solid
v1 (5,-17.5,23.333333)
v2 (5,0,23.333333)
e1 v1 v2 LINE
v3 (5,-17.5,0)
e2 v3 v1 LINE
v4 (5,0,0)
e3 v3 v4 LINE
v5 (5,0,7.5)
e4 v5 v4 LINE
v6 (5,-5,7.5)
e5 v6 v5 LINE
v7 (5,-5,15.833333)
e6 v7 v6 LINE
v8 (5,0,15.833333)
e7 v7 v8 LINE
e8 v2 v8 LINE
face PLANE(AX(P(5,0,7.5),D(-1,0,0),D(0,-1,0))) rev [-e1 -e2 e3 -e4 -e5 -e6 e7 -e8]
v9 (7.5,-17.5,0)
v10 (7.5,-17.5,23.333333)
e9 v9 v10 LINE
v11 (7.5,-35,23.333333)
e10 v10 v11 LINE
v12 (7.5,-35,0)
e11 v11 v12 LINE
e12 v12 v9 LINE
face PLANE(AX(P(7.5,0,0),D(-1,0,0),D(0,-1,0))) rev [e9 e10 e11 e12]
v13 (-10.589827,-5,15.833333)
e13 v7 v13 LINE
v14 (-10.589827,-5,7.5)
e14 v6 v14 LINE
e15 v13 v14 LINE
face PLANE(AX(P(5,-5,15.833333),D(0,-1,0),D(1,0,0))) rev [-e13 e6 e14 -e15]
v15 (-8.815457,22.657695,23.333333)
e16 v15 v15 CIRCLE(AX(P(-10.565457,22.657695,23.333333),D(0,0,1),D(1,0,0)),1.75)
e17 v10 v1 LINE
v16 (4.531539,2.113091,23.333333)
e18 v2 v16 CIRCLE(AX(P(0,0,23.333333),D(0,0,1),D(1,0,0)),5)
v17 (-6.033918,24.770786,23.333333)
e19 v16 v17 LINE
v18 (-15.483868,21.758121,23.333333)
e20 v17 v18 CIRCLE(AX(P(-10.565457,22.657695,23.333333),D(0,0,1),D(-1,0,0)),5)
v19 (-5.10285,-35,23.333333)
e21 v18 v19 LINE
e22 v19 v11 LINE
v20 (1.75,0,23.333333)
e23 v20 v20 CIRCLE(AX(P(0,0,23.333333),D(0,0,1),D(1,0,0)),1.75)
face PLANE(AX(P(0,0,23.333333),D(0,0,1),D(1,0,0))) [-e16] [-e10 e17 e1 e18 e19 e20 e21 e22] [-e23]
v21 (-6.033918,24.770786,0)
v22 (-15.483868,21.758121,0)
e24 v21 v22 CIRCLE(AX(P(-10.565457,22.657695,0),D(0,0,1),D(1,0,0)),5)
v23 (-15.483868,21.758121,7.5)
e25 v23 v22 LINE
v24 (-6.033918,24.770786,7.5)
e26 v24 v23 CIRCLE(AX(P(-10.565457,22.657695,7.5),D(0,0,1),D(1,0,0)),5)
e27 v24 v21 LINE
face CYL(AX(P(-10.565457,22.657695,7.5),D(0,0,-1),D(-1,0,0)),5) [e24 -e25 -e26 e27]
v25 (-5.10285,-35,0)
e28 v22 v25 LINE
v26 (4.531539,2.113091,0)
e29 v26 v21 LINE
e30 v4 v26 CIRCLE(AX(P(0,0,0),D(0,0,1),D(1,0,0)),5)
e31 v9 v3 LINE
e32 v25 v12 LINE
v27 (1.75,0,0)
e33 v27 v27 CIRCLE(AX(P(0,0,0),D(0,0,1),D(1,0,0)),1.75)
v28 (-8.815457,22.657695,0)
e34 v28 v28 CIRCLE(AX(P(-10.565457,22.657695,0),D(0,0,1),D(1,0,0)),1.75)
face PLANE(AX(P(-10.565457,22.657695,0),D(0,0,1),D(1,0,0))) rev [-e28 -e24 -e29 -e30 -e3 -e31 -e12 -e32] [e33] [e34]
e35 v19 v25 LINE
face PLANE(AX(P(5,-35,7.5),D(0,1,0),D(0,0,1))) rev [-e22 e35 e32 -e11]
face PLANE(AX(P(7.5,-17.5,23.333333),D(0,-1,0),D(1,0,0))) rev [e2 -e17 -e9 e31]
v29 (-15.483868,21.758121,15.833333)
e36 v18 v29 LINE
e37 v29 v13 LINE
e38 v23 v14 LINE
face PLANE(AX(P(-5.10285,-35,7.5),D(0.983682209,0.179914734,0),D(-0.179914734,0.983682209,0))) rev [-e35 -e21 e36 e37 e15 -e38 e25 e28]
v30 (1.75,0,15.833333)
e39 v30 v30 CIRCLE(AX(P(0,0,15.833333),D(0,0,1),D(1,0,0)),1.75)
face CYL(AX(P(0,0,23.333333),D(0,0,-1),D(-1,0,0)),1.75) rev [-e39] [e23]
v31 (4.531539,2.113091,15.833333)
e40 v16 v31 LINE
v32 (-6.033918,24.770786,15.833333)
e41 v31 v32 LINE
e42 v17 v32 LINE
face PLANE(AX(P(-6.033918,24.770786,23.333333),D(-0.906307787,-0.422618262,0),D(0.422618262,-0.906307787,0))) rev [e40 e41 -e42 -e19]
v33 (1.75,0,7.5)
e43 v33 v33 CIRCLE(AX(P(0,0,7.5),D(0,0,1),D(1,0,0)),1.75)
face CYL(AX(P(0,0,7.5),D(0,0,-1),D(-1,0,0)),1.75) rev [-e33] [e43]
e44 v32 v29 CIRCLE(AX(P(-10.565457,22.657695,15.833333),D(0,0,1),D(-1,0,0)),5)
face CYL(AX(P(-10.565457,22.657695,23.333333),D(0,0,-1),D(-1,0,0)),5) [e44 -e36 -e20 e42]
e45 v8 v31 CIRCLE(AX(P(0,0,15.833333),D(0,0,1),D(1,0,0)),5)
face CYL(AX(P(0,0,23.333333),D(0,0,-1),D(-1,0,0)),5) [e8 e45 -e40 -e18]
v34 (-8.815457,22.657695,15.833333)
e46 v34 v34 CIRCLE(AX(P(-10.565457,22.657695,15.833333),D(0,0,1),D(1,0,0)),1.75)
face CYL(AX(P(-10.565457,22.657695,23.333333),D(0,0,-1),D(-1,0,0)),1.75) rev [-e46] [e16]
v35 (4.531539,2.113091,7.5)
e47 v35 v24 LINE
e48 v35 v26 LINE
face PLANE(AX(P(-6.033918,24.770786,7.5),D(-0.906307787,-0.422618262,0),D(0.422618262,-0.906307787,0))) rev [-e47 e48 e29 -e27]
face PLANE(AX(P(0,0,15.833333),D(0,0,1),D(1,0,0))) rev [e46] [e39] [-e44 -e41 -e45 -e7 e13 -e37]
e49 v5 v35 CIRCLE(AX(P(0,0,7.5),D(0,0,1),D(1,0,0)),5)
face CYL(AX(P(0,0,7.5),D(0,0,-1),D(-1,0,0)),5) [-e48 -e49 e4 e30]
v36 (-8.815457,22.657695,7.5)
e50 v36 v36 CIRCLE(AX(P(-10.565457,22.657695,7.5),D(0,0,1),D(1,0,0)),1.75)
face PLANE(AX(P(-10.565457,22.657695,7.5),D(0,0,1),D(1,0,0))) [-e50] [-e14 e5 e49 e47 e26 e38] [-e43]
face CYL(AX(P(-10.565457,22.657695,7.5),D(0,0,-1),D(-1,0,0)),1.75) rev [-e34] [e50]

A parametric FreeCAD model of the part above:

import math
import FreeCAD as App
import Part
import Sketcher
Q = App.Units.Quantity


def add_polygon(sketch, points):
    """Adds a closed chain of lines whose ends are joined by coincident constraints."""
    first, n = sketch.GeometryCount, len(points)
    for a, b in zip(points, points[1:] + points[:1]):
        sketch.addGeometry(Part.LineSegment(App.Vector(*a, 0), App.Vector(*b, 0)), False)
    for i in range(n):
        sketch.addConstraint(Sketcher.Constraint("Coincident", first + i, 2, first + (i + 1) % n, 1))

doc = App.newDocument("Part")
params = doc.addObject("Spreadsheet::Sheet", "Params")
for row, (alias, value) in enumerate([
    ("sketch1_radius", "5 mm"),
    ("sketch1_diameter", "3.5 mm"),
    ("sketch1_height", "35 mm"),
    ("sketch1_length", "25 mm"),
    ("pad1_length", "7.5 mm"),
    ("sketch2_height", "30 mm"),
    ("pad2_length", "8.333333 mm"),
    ("sketch3_radius", "5 mm"),
    ("sketch3_diameter", "3.5 mm"),
    ("sketch3_height", "35 mm"),
    ("sketch3_length", "25 mm"),
    ("pad3_length", "7.5 mm"),
    ("sketch4_width", "17.5 mm"),
    ("pad4_length", "2.5 mm"),
], start=1):
    params.set(f"A{row}", alias)
    params.set(f"B{row}", "=" + value)
    params.setAlias(f"B{row}", alias)

body = doc.addObject("PartDesign::Body", "Body")

# Sketch on XY plane
sketch1 = body.newObject("Sketcher::SketchObject", "Sketch")
sketch1.AttachmentSupport = (doc.getObject("XY_Plane"), [""])
sketch1.MapMode = "FlatFace"
sketch1.addGeometry(Part.LineSegment(App.Vector(4.531539, 2.113091, 0), App.Vector(-6.033918, 24.770786, 0)), False)
sketch1.addGeometry(Part.ArcOfCircle(Part.Circle(App.Vector(-10.565457, 22.657695, 0), App.Vector(0, 0, 1), 5), math.radians(25), math.radians(190.364793)), False)
sketch1.addGeometry(Part.LineSegment(App.Vector(-15.483868, 21.758121, 0), App.Vector(-5.10285, -35, 0)), False)
sketch1.addGeometry(Part.LineSegment(App.Vector(-5.10285, -35, 0), App.Vector(5, -35, 0)), False)
sketch1.addGeometry(Part.LineSegment(App.Vector(5, -35, 0), App.Vector(5, 0, 0)), False)
sketch1.addGeometry(Part.ArcOfCircle(Part.Circle(App.Vector(0, 0, 0), App.Vector(0, 0, 1), 5), math.radians(0), math.radians(25)), False)
sketch1.addGeometry(Part.Circle(App.Vector(0, 0, 0), App.Vector(0, 0, 1), 1.75), False)
sketch1.addGeometry(Part.Circle(App.Vector(-10.565457, 22.657695, 0), App.Vector(0, 0, 1), 1.75), False)
sketch1.addConstraint(Sketcher.Constraint("Tangent", 0, 2, 1, 1))
sketch1.addConstraint(Sketcher.Constraint("Tangent", 1, 2, 2, 1))
sketch1.addConstraint(Sketcher.Constraint("Coincident", 2, 2, 3, 1))
sketch1.addConstraint(Sketcher.Constraint("Coincident", 3, 2, 4, 1))
sketch1.addConstraint(Sketcher.Constraint("Tangent", 4, 2, 5, 1))
sketch1.addConstraint(Sketcher.Constraint("Tangent", 5, 2, 0, 1))
sketch1.addConstraint(Sketcher.Constraint("Horizontal", 3))
sketch1.addConstraint(Sketcher.Constraint("Vertical", 4))
sketch1.addConstraint(Sketcher.Constraint("Coincident", 5, 3, -1, 1))
sketch1.addConstraint(Sketcher.Constraint("Coincident", 6, 3, -1, 1))
sketch1.addConstraint(Sketcher.Constraint("Coincident", 7, 3, 1, 3))
sketch1.addConstraint(Sketcher.Constraint("Equal", 1, 5))
sketch1.addConstraint(Sketcher.Constraint("Equal", 6, 7))
sketch1.addConstraint(Sketcher.Constraint("Radius", 1, Q("5 mm")))
sketch1.addConstraint(Sketcher.Constraint("Diameter", 6, Q("3.5 mm")))
sketch1.addConstraint(Sketcher.Constraint("DistanceY", 4, 1, 4, 2, Q("35 mm")))
sketch1.addConstraint(Sketcher.Constraint("Angle", 0, Q("115 deg")))
sketch1.addConstraint(Sketcher.Constraint("Distance", 0, Q("25 mm")))
sketch1.addConstraint(Sketcher.Constraint("DistanceX", 3, 1, 3, 2, Q("10.10285 mm")))
sketch1.setExpression("Constraints[13]", "Params.sketch1_radius")
sketch1.setExpression("Constraints[14]", "Params.sketch1_diameter")
sketch1.setExpression("Constraints[15]", "Params.sketch1_height")
sketch1.setExpression("Constraints[17]", "Params.sketch1_length")
pad1 = body.newObject("PartDesign::Pad", "Pad")
pad1.Profile = sketch1
pad1.setExpression("Length", "Params.pad1_length")

# Sketch on XY plane
sketch2 = body.newObject("Sketcher::SketchObject", "Sketch001")
sketch2.AttachmentSupport = (doc.getObject("XY_Plane"), [""])
sketch2.MapMode = "FlatFace"
sketch2.AttachmentOffset = App.Placement(App.Vector(0, 0, 7.5), App.Rotation())
add_polygon(sketch2, [(5, -5), (-10.589827, -5), (-5.10285, -35), (5, -35)])  # lines 0-3
sketch2.addConstraint(Sketcher.Constraint("Horizontal", 0))
sketch2.addConstraint(Sketcher.Constraint("Horizontal", 2))
sketch2.addConstraint(Sketcher.Constraint("Vertical", 3))
sketch2.addConstraint(Sketcher.Constraint("DistanceY", 3, 1, 3, 2, Q("30 mm")))
sketch2.addConstraint(Sketcher.Constraint("DistanceY", 0, 2, -1, 1, Q("5 mm")))
sketch2.addConstraint(Sketcher.Constraint("DistanceX", -1, 1, 2, 2, Q("5 mm")))
sketch2.addConstraint(Sketcher.Constraint("DistanceX", 2, 1, 2, 2, Q("10.10285 mm")))
sketch2.addConstraint(Sketcher.Constraint("DistanceX", 0, 2, 0, 1, Q("15.589827 mm")))
sketch2.setExpression("Constraints[7]", "Params.sketch2_height")
pad2 = body.newObject("PartDesign::Pad", "Pad001")
pad2.Profile = sketch2
pad2.setExpression("Length", "Params.pad2_length")

# Sketch on XY plane
sketch3 = body.newObject("Sketcher::SketchObject", "Sketch002")
sketch3.AttachmentSupport = (doc.getObject("XY_Plane"), [""])
sketch3.MapMode = "FlatFace"
sketch3.AttachmentOffset = App.Placement(App.Vector(0, 0, 15.833333), App.Rotation())
sketch3.addGeometry(Part.LineSegment(App.Vector(5, -35, 0), App.Vector(5, 0, 0)), False)
sketch3.addGeometry(Part.ArcOfCircle(Part.Circle(App.Vector(0, 0, 0), App.Vector(0, 0, 1), 5), math.radians(0), math.radians(25)), False)
sketch3.addGeometry(Part.LineSegment(App.Vector(4.531539, 2.113091, 0), App.Vector(-6.033918, 24.770786, 0)), False)
sketch3.addGeometry(Part.ArcOfCircle(Part.Circle(App.Vector(-10.565457, 22.657695, 0), App.Vector(0, 0, 1), 5), math.radians(25), math.radians(190.364793)), False)
sketch3.addGeometry(Part.LineSegment(App.Vector(-15.483868, 21.758121, 0), App.Vector(-5.10285, -35, 0)), False)
sketch3.addGeometry(Part.LineSegment(App.Vector(-5.10285, -35, 0), App.Vector(5, -35, 0)), False)
sketch3.addGeometry(Part.Circle(App.Vector(0, 0, 0), App.Vector(0, 0, 1), 1.75), False)
sketch3.addGeometry(Part.Circle(App.Vector(-10.565457, 22.657695, 0), App.Vector(0, 0, 1), 1.75), False)
sketch3.addConstraint(Sketcher.Constraint("Tangent", 0, 2, 1, 1))
sketch3.addConstraint(Sketcher.Constraint("Tangent", 1, 2, 2, 1))
sketch3.addConstraint(Sketcher.Constraint("Tangent", 2, 2, 3, 1))
sketch3.addConstraint(Sketcher.Constraint("Tangent", 3, 2, 4, 1))
sketch3.addConstraint(Sketcher.Constraint("Coincident", 4, 2, 5, 1))
sketch3.addConstraint(Sketcher.Constraint("Coincident", 5, 2, 0, 1))
sketch3.addConstraint(Sketcher.Constraint("Vertical", 0))
sketch3.addConstraint(Sketcher.Constraint("Horizontal", 5))
sketch3.addConstraint(Sketcher.Constraint("Coincident", 1, 3, -1, 1))
sketch3.addConstraint(Sketcher.Constraint("Coincident", 6, 3, -1, 1))
sketch3.addConstraint(Sketcher.Constraint("Coincident", 7, 3, 3, 3))
sketch3.addConstraint(Sketcher.Constraint("Equal", 1, 3))
sketch3.addConstraint(Sketcher.Constraint("Equal", 6, 7))
sketch3.addConstraint(Sketcher.Constraint("Radius", 1, Q("5 mm")))
sketch3.addConstraint(Sketcher.Constraint("Diameter", 6, Q("3.5 mm")))
sketch3.addConstraint(Sketcher.Constraint("DistanceY", 0, 1, 0, 2, Q("35 mm")))
sketch3.addConstraint(Sketcher.Constraint("Angle", 2, Q("115 deg")))
sketch3.addConstraint(Sketcher.Constraint("Distance", 2, Q("25 mm")))
sketch3.addConstraint(Sketcher.Constraint("DistanceX", 5, 1, 5, 2, Q("10.10285 mm")))
sketch3.setExpression("Constraints[13]", "Params.sketch3_radius")
sketch3.setExpression("Constraints[14]", "Params.sketch3_diameter")
sketch3.setExpression("Constraints[15]", "Params.sketch3_height")
sketch3.setExpression("Constraints[17]", "Params.sketch3_length")
pad3 = body.newObject("PartDesign::Pad", "Pad002")
pad3.Profile = sketch3
pad3.setExpression("Length", "Params.pad3_length")

# Sketch on YZ plane
sketch4 = body.newObject("Sketcher::SketchObject", "Sketch003")
sketch4.AttachmentSupport = (doc.getObject("YZ_Plane"), [""])
sketch4.MapMode = "FlatFace"
sketch4.AttachmentOffset = App.Placement(App.Vector(0, 0, 5), App.Rotation())
add_polygon(sketch4, [(-17.5, 23.333333), (-35, 23.333333), (-35, 0), (-17.5, 0)])  # lines 0-3
sketch4.addConstraint(Sketcher.Constraint("Horizontal", 0))
sketch4.addConstraint(Sketcher.Constraint("Vertical", 1))
sketch4.addConstraint(Sketcher.Constraint("Horizontal", 2))
sketch4.addConstraint(Sketcher.Constraint("Vertical", 3))
sketch4.addConstraint(Sketcher.Constraint("PointOnObject", 1, 2, -1))
sketch4.addConstraint(Sketcher.Constraint("DistanceX", 0, 2, 0, 1, Q("17.5 mm")))
sketch4.addConstraint(Sketcher.Constraint("DistanceX", 0, 2, -1, 1, Q("35 mm")))
sketch4.addConstraint(Sketcher.Constraint("DistanceY", 1, 2, 1, 1, Q("23.333333 mm")))
sketch4.setExpression("Constraints[9]", "Params.sketch4_width")
pad4 = body.newObject("PartDesign::Pad", "Pad003")
pad4.Profile = sketch4
pad4.setExpression("Length", "Params.pad4_length")

doc.recompute()
